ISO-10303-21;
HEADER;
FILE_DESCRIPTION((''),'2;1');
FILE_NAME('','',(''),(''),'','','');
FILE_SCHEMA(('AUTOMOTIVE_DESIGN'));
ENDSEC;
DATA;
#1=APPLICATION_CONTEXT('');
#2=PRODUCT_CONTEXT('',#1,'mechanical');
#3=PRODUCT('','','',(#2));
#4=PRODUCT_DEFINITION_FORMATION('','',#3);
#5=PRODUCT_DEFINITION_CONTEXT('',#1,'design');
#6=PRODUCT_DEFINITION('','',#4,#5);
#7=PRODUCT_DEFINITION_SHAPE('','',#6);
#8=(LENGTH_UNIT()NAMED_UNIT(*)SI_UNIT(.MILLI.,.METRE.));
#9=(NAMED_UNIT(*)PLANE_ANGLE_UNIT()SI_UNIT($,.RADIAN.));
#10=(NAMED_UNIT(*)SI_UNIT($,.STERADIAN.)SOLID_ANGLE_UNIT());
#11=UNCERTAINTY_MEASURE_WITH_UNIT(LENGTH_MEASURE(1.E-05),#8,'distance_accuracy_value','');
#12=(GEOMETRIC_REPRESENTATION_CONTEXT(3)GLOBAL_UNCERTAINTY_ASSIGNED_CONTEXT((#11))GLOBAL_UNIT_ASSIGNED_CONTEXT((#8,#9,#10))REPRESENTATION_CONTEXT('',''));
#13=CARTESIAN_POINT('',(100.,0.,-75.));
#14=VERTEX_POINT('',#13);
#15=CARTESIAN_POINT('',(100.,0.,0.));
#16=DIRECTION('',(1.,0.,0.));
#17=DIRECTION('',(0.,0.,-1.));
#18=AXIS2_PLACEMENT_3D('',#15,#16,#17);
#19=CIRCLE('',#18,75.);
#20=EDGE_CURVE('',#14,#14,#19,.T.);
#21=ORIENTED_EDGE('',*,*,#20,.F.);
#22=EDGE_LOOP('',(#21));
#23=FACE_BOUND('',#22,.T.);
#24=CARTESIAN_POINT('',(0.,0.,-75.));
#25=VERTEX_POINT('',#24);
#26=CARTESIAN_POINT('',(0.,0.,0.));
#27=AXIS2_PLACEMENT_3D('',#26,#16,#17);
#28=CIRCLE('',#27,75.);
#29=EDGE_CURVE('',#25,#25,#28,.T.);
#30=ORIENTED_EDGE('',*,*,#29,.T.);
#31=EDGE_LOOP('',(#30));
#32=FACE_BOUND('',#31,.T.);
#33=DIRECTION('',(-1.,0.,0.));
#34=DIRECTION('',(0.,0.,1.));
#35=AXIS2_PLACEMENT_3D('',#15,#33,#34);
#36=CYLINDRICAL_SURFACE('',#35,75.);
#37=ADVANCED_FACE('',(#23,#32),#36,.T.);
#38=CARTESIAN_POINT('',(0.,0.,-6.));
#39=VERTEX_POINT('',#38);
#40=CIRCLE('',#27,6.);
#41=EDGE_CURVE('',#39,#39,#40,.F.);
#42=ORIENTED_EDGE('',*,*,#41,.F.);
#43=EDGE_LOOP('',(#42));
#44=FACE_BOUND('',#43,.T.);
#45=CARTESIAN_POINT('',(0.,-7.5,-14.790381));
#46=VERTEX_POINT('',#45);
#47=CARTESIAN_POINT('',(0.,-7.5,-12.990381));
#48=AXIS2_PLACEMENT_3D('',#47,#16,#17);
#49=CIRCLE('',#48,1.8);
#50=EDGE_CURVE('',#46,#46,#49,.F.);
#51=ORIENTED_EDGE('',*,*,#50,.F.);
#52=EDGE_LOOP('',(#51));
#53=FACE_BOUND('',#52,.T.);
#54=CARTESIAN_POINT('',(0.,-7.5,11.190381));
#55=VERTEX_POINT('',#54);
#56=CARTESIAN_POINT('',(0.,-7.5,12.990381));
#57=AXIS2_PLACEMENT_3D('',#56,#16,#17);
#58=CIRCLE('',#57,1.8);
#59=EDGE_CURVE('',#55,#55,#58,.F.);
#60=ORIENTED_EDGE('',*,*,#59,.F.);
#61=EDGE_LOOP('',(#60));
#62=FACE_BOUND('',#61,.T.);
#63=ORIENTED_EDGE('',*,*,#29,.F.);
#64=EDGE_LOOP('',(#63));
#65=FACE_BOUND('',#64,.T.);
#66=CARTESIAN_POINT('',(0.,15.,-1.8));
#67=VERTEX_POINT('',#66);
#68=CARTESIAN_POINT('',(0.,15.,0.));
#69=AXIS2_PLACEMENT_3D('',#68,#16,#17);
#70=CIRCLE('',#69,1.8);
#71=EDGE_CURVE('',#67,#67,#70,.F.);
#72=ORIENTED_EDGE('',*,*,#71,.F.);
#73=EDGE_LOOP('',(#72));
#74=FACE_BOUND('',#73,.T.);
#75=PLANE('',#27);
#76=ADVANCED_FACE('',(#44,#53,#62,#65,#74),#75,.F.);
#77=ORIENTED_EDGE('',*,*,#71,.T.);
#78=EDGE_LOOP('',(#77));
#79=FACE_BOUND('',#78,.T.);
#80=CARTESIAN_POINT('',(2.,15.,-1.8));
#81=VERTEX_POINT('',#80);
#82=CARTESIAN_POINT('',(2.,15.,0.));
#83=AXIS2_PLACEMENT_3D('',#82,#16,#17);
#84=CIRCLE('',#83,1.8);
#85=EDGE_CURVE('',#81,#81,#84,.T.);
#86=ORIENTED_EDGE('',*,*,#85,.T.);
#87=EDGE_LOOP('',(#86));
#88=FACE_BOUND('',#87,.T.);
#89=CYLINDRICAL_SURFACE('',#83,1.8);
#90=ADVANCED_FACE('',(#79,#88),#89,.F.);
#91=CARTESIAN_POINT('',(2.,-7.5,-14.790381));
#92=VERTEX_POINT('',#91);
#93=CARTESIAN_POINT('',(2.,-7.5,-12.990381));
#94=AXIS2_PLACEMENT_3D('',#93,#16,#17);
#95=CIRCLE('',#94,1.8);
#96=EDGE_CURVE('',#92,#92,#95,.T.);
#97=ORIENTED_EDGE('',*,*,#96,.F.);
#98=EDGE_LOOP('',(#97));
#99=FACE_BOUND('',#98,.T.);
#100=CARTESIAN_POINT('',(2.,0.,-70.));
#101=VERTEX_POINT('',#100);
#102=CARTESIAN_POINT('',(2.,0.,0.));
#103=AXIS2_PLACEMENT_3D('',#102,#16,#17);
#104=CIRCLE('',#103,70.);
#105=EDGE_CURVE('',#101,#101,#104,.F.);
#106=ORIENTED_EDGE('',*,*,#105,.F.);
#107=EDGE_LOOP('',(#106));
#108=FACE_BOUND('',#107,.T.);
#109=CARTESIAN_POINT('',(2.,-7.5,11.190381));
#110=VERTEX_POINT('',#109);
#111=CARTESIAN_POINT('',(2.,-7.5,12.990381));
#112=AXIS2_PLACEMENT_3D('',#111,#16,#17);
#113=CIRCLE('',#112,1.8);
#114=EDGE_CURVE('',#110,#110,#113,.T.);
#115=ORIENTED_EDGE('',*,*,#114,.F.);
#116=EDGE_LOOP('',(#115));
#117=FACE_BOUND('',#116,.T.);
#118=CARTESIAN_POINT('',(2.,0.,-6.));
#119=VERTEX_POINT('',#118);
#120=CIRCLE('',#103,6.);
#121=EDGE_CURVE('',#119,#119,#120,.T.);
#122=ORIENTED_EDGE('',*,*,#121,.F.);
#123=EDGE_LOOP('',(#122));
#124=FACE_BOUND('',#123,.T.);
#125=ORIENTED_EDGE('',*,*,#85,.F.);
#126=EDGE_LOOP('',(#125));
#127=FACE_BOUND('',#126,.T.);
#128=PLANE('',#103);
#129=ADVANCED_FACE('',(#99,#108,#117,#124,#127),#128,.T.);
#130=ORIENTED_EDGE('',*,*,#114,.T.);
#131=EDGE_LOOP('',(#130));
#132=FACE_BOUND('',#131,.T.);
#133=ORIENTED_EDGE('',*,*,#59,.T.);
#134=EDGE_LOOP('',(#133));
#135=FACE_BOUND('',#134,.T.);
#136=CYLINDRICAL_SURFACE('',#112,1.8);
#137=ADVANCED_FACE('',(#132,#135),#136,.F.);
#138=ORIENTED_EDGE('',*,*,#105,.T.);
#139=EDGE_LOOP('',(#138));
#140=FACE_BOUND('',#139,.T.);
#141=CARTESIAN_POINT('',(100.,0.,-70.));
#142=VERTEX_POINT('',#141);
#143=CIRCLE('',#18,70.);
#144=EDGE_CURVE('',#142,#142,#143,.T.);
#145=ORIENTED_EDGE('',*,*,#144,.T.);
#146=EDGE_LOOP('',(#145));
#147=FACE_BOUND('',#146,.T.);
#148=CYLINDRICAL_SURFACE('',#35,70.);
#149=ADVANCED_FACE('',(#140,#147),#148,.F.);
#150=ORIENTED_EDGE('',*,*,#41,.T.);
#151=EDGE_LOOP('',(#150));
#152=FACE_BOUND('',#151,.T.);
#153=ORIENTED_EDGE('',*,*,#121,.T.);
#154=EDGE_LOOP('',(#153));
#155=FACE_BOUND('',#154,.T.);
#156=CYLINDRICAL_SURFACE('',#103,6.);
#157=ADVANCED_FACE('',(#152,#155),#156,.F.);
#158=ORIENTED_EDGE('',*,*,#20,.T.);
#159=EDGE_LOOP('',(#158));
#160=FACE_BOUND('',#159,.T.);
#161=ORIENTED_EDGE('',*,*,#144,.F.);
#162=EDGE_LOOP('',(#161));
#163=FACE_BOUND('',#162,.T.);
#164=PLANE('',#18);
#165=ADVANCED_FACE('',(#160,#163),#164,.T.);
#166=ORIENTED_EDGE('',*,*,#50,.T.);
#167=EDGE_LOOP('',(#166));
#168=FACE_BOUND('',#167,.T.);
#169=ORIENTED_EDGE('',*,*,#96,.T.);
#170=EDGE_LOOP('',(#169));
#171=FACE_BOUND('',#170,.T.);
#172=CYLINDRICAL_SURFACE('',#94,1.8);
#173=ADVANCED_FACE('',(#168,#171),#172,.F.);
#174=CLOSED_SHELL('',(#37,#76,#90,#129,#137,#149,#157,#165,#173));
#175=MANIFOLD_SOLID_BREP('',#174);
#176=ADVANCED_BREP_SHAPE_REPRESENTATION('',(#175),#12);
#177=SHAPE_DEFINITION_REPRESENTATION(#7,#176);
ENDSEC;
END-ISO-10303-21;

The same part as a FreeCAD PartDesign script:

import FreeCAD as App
import Part
import Sketcher

V = App.Vector
Q = App.Units.Quantity

doc = App.newDocument("Part")
params = doc.addObject("Spreadsheet::Sheet", "Params")
for row, (alias, value) in enumerate([
    ("sketch1_diameter", "140 mm"),
    ("pad1_length", "2 mm"),
    ("sketch2_diameter", "150 mm"),
    ("sketch2_diameter2", "140 mm"),
    ("pad2_length", "100 mm"),
    ("sketch3_diameter", "3.6 mm"),
    ("hole_diameter", "3.6 mm"),
    ("hole_depth", "2 mm"),
    ("sketch4_diameter", "12 mm"),
    ("hole2_diameter", "12 mm"),
    ("hole2_depth", "2 mm"),
], start=1):
    params.set(f"A{row}", alias)
    params.set(f"B{row}", "=" + value)
    params.setAlias(f"B{row}", alias)

body = doc.addObject("PartDesign::Body", "Body")

# Sketch on YZ plane
sketch1 = body.newObject("Sketcher::SketchObject", "Sketch")
sketch1.AttachmentSupport = (doc.getObject("YZ_Plane"), [""])
sketch1.MapMode = "FlatFace"
sketch1.addGeometry(Part.Circle(V(0, 0, 0), V(0, 0, 1), 70), False)
sketch1.addConstraint([
    Sketcher.Constraint("Coincident", 0, 3, -1, 1),
    Sketcher.Constraint("Diameter", 0, Q("140 mm")),
])
sketch1.setExpression("Constraints[1]", "Params.sketch1_diameter")
pad1 = body.newObject("PartDesign::Pad", "Pad")
pad1.Profile = sketch1
pad1.setExpression("Length", "Params.pad1_length")

# Sketch on YZ plane
sketch2 = body.newObject("Sketcher::SketchObject", "Sketch001")
sketch2.AttachmentSupport = (doc.getObject("YZ_Plane"), [""])
sketch2.MapMode = "FlatFace"
sketch2.addGeometry([
    Part.Circle(V(0, 0, 0), V(0, 0, 1), 75),
    Part.Circle(V(0, 0, 0), V(0, 0, 1), 70),
], False)
sketch2.addConstraint([
    Sketcher.Constraint("Coincident", 0, 3, -1, 1),
    Sketcher.Constraint("Coincident", 1, 3, -1, 1),
    Sketcher.Constraint("Diameter", 0, Q("150 mm")),
    Sketcher.Constraint("Diameter", 1, Q("140 mm")),
])
sketch2.setExpression("Constraints[2]", "Params.sketch2_diameter")
sketch2.setExpression("Constraints[3]", "Params.sketch2_diameter2")
pad2 = body.newObject("PartDesign::Pad", "Pad001")
pad2.Profile = sketch2
pad2.setExpression("Length", "Params.pad2_length")

# Sketch on YZ plane
sketch3 = body.newObject("Sketcher::SketchObject", "Sketch002")
sketch3.AttachmentSupport = (doc.getObject("YZ_Plane"), [""])
sketch3.MapMode = "FlatFace"
sketch3.AttachmentOffset = App.Placement(V(0, 0, 2), App.Rotation())
sketch3.addGeometry([
    Part.Circle(V(-7.5, -12.990381, 0), V(0, 0, 1), 1.8),
    Part.Circle(V(15, 0, 0), V(0, 0, 1), 1.8),
    Part.Circle(V(-7.5, 12.990381, 0), V(0, 0, 1), 1.8),
], False)
sketch3.addConstraint([
    Sketcher.Constraint("Equal", 0, 1),
    Sketcher.Constraint("Equal", 1, 2),
    Sketcher.Constraint("Symmetric", 0, 3, 2, 3, -1),
    Sketcher.Constraint("PointOnObject", 1, 3, -1),
    Sketcher.Constraint("Diameter", 0, Q("3.6 mm")),
    Sketcher.Constraint("DistanceX", -1, 1, 1, 3, Q("15 mm")),
    Sketcher.Constraint("DistanceX", 0, 3, -1, 1, Q("7.5 mm")),
    Sketcher.Constraint("DistanceY", 0, 3, -1, 1, Q("12.990381 mm")),
])
sketch3.setExpression("Constraints[4]", "Params.sketch3_diameter")
doc.recompute()
hole = body.newObject("PartDesign::Hole", "Hole")
hole.Profile = sketch3
hole.ThreadType = "None"
hole.setExpression("Diameter", "Params.hole_diameter")
hole.DepthType = "Dimension"
hole.setExpression("Depth", "Params.hole_depth")
hole.DrillPoint = "Angled"
hole.DrillPointAngle = 118

# Sketch on YZ plane
sketch4 = body.newObject("Sketcher::SketchObject", "Sketch003")
sketch4.AttachmentSupport = (doc.getObject("YZ_Plane"), [""])
sketch4.MapMode = "FlatFace"
sketch4.AttachmentOffset = App.Placement(V(0, 0, 2), App.Rotation())
sketch4.addGeometry(Part.Circle(V(0, 0, 0), V(0, 0, 1), 6), False)
sketch4.addConstraint([
    Sketcher.Constraint("Coincident", 0, 3, -1, 1),
    Sketcher.Constraint("Diameter", 0, Q("12 mm")),
])
sketch4.setExpression("Constraints[1]", "Params.sketch4_diameter")
doc.recompute()
hole2 = body.newObject("PartDesign::Hole", "Hole001")
hole2.Profile = sketch4
hole2.ThreadType = "None"
hole2.setExpression("Diameter", "Params.hole2_diameter")
hole2.DepthType = "Dimension"
hole2.setExpression("Depth", "Params.hole2_depth")
hole2.DrillPoint = "Angled"
hole2.DrillPointAngle = 118

doc.recompute()
